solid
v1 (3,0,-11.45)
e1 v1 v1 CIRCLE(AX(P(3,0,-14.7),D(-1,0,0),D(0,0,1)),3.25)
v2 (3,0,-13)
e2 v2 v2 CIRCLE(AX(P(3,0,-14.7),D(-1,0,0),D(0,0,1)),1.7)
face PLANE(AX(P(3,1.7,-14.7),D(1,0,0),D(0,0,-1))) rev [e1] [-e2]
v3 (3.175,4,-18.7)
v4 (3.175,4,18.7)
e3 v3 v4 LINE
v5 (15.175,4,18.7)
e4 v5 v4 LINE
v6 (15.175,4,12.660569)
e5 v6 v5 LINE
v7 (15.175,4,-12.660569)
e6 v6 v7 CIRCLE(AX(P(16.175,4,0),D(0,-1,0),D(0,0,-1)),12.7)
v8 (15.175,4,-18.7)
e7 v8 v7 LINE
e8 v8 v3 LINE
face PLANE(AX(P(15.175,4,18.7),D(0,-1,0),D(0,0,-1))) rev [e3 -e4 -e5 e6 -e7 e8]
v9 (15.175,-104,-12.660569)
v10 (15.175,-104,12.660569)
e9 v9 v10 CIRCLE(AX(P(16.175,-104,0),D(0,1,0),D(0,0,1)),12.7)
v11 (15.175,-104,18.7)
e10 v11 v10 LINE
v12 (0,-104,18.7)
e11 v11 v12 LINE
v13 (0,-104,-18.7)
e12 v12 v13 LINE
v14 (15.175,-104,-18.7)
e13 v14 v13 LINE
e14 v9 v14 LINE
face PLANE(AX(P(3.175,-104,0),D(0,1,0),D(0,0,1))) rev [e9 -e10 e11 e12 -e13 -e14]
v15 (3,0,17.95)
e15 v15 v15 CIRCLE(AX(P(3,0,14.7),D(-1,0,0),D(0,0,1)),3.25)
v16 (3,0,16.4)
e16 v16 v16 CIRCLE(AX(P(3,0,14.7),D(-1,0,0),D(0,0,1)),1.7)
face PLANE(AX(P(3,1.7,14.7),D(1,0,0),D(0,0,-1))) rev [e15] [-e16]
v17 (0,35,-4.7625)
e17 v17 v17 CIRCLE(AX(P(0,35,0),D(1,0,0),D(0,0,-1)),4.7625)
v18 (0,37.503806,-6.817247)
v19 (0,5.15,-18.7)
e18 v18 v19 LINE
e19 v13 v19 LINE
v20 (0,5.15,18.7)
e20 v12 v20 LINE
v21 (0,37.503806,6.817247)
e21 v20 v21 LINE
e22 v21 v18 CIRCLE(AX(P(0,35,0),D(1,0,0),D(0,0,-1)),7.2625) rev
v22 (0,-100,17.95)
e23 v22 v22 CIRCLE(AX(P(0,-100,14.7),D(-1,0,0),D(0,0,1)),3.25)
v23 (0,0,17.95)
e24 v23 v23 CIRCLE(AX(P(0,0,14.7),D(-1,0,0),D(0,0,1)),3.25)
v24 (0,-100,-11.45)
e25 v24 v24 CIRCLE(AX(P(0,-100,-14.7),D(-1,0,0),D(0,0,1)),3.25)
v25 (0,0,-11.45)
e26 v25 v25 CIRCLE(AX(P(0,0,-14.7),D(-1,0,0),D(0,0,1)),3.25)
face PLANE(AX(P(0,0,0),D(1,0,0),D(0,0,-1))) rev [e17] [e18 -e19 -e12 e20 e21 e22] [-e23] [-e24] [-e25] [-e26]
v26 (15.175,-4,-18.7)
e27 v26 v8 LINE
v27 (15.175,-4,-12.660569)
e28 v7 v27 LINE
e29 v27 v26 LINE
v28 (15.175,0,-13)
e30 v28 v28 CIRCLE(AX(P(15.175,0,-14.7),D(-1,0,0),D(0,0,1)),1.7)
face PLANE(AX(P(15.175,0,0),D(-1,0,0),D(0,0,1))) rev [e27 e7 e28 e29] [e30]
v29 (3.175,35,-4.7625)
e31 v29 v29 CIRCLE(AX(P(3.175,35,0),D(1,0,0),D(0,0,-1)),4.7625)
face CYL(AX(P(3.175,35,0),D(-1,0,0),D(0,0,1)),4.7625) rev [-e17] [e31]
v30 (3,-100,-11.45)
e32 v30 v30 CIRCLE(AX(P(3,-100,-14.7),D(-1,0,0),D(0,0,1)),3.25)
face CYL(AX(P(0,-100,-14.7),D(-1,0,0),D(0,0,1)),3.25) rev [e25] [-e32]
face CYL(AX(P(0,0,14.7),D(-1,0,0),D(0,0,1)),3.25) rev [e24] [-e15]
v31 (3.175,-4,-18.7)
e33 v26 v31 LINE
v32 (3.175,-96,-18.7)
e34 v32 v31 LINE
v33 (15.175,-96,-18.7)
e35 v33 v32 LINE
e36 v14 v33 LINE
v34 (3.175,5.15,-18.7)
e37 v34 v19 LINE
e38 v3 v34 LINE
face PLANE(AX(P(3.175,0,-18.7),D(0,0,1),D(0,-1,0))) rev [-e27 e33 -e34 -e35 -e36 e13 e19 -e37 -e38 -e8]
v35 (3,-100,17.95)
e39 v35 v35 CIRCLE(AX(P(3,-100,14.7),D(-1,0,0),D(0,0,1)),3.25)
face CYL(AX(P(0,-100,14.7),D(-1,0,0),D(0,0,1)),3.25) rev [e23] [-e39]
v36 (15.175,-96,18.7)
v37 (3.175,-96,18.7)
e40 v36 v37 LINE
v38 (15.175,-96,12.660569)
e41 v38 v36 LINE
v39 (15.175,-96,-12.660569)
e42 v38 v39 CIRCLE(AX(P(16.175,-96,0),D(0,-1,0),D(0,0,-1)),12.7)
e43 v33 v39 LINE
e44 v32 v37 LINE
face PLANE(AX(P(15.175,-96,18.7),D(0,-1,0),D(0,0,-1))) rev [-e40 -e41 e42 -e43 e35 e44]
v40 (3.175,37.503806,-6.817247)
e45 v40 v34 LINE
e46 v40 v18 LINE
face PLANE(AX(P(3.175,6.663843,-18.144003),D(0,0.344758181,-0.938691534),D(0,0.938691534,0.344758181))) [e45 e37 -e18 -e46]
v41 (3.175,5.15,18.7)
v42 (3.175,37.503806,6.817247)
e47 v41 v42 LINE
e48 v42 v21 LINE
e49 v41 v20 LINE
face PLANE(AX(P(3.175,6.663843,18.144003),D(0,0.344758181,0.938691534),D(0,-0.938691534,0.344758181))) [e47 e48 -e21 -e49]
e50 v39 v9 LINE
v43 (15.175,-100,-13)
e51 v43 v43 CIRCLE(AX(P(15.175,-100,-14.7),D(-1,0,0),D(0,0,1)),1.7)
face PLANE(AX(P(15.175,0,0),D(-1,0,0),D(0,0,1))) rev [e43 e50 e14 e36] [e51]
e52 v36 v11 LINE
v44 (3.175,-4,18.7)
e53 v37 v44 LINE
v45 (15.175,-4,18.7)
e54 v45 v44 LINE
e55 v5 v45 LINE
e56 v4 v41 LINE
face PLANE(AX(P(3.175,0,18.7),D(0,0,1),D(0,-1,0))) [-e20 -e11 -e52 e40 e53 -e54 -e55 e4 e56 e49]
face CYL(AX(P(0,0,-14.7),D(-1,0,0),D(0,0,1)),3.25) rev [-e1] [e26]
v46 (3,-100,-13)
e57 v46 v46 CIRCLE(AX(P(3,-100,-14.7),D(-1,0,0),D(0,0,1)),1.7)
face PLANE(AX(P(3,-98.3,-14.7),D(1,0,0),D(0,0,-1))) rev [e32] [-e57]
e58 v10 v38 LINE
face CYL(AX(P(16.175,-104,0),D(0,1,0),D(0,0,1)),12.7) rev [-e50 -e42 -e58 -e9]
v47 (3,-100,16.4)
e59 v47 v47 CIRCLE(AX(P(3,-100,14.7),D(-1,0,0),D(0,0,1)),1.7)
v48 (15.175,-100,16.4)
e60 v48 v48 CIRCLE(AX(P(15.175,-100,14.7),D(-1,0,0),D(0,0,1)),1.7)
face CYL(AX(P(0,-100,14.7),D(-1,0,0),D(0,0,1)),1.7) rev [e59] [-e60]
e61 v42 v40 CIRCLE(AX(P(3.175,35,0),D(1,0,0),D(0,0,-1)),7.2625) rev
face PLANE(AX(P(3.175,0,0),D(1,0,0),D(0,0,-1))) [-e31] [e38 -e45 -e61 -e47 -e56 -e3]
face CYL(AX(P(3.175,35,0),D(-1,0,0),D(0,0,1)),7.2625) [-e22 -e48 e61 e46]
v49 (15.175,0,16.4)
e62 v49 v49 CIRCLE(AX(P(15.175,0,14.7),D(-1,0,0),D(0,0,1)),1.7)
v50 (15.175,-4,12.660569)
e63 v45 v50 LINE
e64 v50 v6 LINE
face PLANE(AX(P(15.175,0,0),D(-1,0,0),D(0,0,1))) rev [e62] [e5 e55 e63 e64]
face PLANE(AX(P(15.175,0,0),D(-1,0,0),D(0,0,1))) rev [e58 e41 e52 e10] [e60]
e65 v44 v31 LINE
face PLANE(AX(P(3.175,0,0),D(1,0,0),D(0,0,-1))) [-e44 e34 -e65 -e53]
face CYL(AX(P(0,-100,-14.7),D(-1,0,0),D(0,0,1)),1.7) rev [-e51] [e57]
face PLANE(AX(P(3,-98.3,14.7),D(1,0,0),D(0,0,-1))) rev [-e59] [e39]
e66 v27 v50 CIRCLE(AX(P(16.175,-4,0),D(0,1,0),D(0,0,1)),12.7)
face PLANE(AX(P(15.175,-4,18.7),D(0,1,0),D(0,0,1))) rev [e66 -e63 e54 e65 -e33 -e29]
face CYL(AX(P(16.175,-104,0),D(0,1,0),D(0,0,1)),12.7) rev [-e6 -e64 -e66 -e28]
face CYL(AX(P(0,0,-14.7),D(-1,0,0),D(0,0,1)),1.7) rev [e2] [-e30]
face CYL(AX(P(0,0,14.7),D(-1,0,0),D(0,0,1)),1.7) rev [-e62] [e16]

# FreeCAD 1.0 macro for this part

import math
import FreeCAD as App
import Part
import Sketcher
from FreeCAD import Vector
Q = App.Units.Quantity


def add_polygon(sketch, points):
    """Adds a closed chain of lines whose ends are joined by coincident constraints."""
    first, n = sketch.GeometryCount, len(points)
    for a, b in zip(points, points[1:] + points[:1]):
        sketch.addGeometry(Part.LineSegment(App.Vector(*a, 0), App.Vector(*b, 0)), False)
    for i in range(n):
        sketch.addConstraint(Sketcher.Constraint("Coincident", first + i, 2, first + (i + 1) % n, 1))

doc = App.newDocument("Part")
body = doc.addObject("PartDesign::Body", "Body")

sketch1 = body.newObject("Sketcher::SketchObject", "Sketch")
sketch1.AttachmentSupport = (doc.getObject("YZ_Plane"), [""])
sketch1.MapMode = "FlatFace"
sketch1.addGeometry([
    Part.LineSegment(Vector(-104, 18.7, 0), Vector(-104, -18.7, 0)),
    Part.LineSegment(Vector(-104, -18.7, 0), Vector(5.15, -18.7, 0)),
    Part.LineSegment(Vector(5.15, -18.7, 0), Vector(37.503806, -6.817247, 0)),
    Part.ArcOfCircle(Part.Circle(Vector(35, 0, 0), Vector(0, 0, 1), 7.2625), math.radians(-69.832965), math.radians(69.832965)),
    Part.LineSegment(Vector(37.503806, 6.817247, 0), Vector(5.15, 18.7, 0)),
    Part.LineSegment(Vector(5.15, 18.7, 0), Vector(-104, 18.7, 0)),
    Part.Circle(Vector(35, 0, 0), Vector(0, 0, 1), 4.7625),
], False)
sketch1.addConstraint([
    Sketcher.Constraint("Coincident", 0, 2, 1, 1),
    Sketcher.Constraint("Coincident", 1, 2, 2, 1),
    Sketcher.Constraint("Tangent", 2, 2, 3, 1),
    Sketcher.Constraint("Tangent", 3, 2, 4, 1),
    Sketcher.Constraint("Coincident", 4, 2, 5, 1),
    Sketcher.Constraint("Coincident", 5, 2, 0, 1),
    Sketcher.Constraint("Vertical", 0),
    Sketcher.Constraint("Horizontal", 1),
    Sketcher.Constraint("Horizontal", 5),
    Sketcher.Constraint("Coincident", 6, 3, 3, 3),
    Sketcher.Constraint("Symmetric", 2, 2, 3, 2, -1),
    Sketcher.Constraint("Vertical", 1, 2, 4, 2),
    Sketcher.Constraint("Diameter", 6, Q("9.525 mm")),
    Sketcher.Constraint("DistanceY", 0, 2, 0, 1, Q("37.4 mm")),
    Sketcher.Constraint("DistanceX", -1, 1, 3, 3, Q("35 mm")),
    Sketcher.Constraint("DistanceX", 0, 2, -1, 1, Q("104 mm")),
    Sketcher.Constraint("DistanceX", 1, 1, 1, 2, Q("109.15 mm")),
    Sketcher.Constraint("Radius", 3, Q("7.2625 mm")),
])
pad1 = body.newObject("PartDesign::Pad", "Pad")
pad1.Profile = sketch1
pad1.Length = 3.175

sketch2 = body.newObject("Sketcher::SketchObject", "Sketch001")
sketch2.AttachmentSupport = (doc.getObject("YZ_Plane"), [""])
sketch2.MapMode = "FlatFace"
sketch2.AttachmentOffset = App.Placement(Vector(0, 0, 3.175), App.Rotation())
add_polygon(sketch2, [(4, 18.7), (-4, 18.7), (-4, -18.7), (4, -18.7)])
add_polygon(sketch2, [(-96, 18.7), (-104, 18.7), (-104, -18.7), (-96, -18.7)])
sketch2.addConstraint([
    Sketcher.Constraint("Horizontal", 0),
    Sketcher.Constraint("Vertical", 1),
    Sketcher.Constraint("Horizontal", 2),
    Sketcher.Constraint("Vertical", 3),
    Sketcher.Constraint("Horizontal", 4),
    Sketcher.Constraint("Vertical", 5),
    Sketcher.Constraint("Horizontal", 6),
    Sketcher.Constraint("Vertical", 7),
    Sketcher.Constraint("Symmetric", 0, 2, 2, 2, -1, 1),
    Sketcher.Constraint("Horizontal", 3, 2, 4, 2),
    Sketcher.Constraint("Horizontal", 2, 2, 5, 2),
    Sketcher.Constraint("Equal", 2, 4),
    Sketcher.Constraint("DistanceX", 0, 2, 0, 1, Q("8 mm")),
    Sketcher.Constraint("DistanceY", 1, 2, 1, 1, Q("37.4 mm")),
    Sketcher.Constraint("DistanceX", 4, 2, -1, 1, Q("104 mm")),
])
pad2 = body.newObject("PartDesign::Pad", "Pad001")
pad2.Profile = sketch2
pad2.Length = 12

sketch3 = body.newObject("Sketcher::SketchObject", "Sketch002")
sketch3.AttachmentSupport = (doc.getObject("XZ_Plane"), [""])
sketch3.MapMode = "FlatFace"
sketch3.addGeometry(Part.Circle(Vector(16.175, 0, 0), Vector(0, 0, 1), 12.7), False)
sketch3.addConstraint([
    Sketcher.Constraint("PointOnObject", 0, 3, -1),
    Sketcher.Constraint("Diameter", 0, Q("25.4 mm")),
    Sketcher.Constraint("DistanceX", -1, 1, 0, 3, Q("16.175 mm")),
])
pocket1 = body.newObject("PartDesign::Pocket", "Pocket")
pocket1.Profile = sketch3
pocket1.Type = "ThroughAll"
pocket1.Midplane = True

sketch4 = body.newObject("Sketcher::SketchObject", "Sketch003")
sketch4.AttachmentSupport = (doc.getObject("YZ_Plane"), [""])
sketch4.MapMode = "FlatFace"
sketch4.addGeometry([
    Part.Circle(Vector(0, -14.7, 0), Vector(0, 0, 1), 1.7),
    Part.Circle(Vector(0, 14.7, 0), Vector(0, 0, 1), 1.7),
    Part.Circle(Vector(-100, 14.7, 0), Vector(0, 0, 1), 1.7),
    Part.Circle(Vector(-100, -14.7, 0), Vector(0, 0, 1), 1.7),
], False)
sketch4.addConstraint([
    Sketcher.Constraint("Equal", 0, 1),
    Sketcher.Constraint("Equal", 1, 2),
    Sketcher.Constraint("Equal", 2, 3),
    Sketcher.Constraint("Symmetric", 0, 3, 1, 3, -1, 1),
    Sketcher.Constraint("Symmetric", 2, 3, 3, 3, -1),
    Sketcher.Constraint("PointOnObject", 0, 3, -2),
    Sketcher.Constraint("Horizontal", 1, 3, 2, 3),
    Sketcher.Constraint("Diameter", 0, Q("3.4 mm")),
    Sketcher.Constraint("DistanceX", 2, 3, -1, 1, Q("100 mm")),
    Sketcher.Constraint("DistanceY", 0, 3, -1, 1, Q("14.7 mm")),
])
doc.recompute()
hole = body.newObject("PartDesign::Hole", "Hole")
hole.Profile = sketch4
hole.ThreadType = "None"
hole.Diameter = 3.4
hole.DepthType = "ThroughAll"
hole.HoleCutType = "Counterbore"
hole.HoleCutDiameter = 6.5
hole.HoleCutDepth = 3
hole.Reversed = True

doc.recompute()
